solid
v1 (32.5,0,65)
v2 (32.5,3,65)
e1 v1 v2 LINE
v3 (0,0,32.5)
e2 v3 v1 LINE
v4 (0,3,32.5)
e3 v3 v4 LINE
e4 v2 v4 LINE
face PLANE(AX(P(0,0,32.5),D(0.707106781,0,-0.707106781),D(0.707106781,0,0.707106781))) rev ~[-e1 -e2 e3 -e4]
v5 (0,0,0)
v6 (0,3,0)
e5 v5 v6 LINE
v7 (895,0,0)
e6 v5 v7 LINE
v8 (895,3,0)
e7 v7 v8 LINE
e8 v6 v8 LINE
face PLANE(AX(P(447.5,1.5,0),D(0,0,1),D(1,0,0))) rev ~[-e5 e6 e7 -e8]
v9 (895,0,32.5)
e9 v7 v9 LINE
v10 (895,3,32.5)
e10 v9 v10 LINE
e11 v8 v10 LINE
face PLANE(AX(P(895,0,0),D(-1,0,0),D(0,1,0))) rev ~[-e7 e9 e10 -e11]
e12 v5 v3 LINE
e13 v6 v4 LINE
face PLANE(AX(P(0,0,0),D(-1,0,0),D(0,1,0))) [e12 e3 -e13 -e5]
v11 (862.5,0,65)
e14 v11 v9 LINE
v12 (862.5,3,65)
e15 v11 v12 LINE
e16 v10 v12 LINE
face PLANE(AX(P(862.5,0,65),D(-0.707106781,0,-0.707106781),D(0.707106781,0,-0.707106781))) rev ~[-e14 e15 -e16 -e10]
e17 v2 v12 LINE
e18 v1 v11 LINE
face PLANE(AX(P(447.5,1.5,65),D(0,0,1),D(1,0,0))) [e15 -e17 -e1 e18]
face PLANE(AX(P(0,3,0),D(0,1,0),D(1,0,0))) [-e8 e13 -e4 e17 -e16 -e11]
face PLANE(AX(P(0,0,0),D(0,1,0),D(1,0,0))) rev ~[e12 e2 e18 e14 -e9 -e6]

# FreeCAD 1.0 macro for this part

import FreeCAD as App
import Part
import Sketcher
Q = App.Units.Quantity


def add_polygon(sketch, points):
    """Adds a closed chain of lines whose ends are joined by coincident constraints."""
    first, n = sketch.GeometryCount, len(points)
    for a, b in zip(points, points[1:] + points[:1]):
        sketch.addGeometry(Part.LineSegment(App.Vector(*a, 0), App.Vector(*b, 0)), False)
    for i in range(n):
        sketch.addConstraint(Sketcher.Constraint("Coincident", first + i, 2, first + (i + 1) % n, 1))

doc = App.newDocument("Part")
params = doc.addObject("Spreadsheet::Sheet", "Params")
for row, (alias, value) in enumerate([
    ("sketch1_width", "895 mm"),
    ("sketch1_height", "3 mm"),
    ("pad1_length", "65 mm"),
    ("sketch2_width", "32.5 mm"),
], start=1):
    params.set(f"A{row}", alias)
    params.set(f"B{row}", "=" + value)
    params.setAlias(f"B{row}", alias)

body = doc.addObject("PartDesign::Body", "Body")

sketch1 = body.newObject("Sketcher::SketchObject", "Sketch")
sketch1.AttachmentSupport = (doc.getObject("XY_Plane"), [""])
sketch1.MapMode = "FlatFace"
add_polygon(sketch1, [(0, 3), (0, 0), (895, 0), (895, 3)])
sketch1.addConstraint(Sketcher.Constraint("Vertical", 0))
sketch1.addConstraint(Sketcher.Constraint("Horizontal", 1))
sketch1.addConstraint(Sketcher.Constraint("Vertical", 2))
sketch1.addConstraint(Sketcher.Constraint("Horizontal", 3))
sketch1.addConstraint(Sketcher.Constraint("Coincident", 0, 2, -1, 1))
sketch1.addConstraint(Sketcher.Constraint("DistanceX", 1, 1, 1, 2, Q("895 mm")))
sketch1.addConstraint(Sketcher.Constraint("DistanceY", 0, 2, 0, 1, Q("3 mm")))
sketch1.setExpression("Constraints[9]", "Params.sketch1_width")
sketch1.setExpression("Constraints[10]", "Params.sketch1_height")
pad1 = body.newObject("PartDesign::Pad", "Pad")
pad1.Profile = sketch1
pad1.setExpression("Length", "Params.pad1_length")

sketch2 = body.newObject("Sketcher::SketchObject", "Sketch001")
sketch2.AttachmentSupport = (doc.getObject("XZ_Plane"), [""])
sketch2.MapMode = "FlatFace"
add_polygon(sketch2, [(895, 65), (862.5, 65), (895, 32.5)])
add_polygon(sketch2, [(0, 65), (0, 32.5), (32.5, 65)])
sketch2.addConstraint(Sketcher.Constraint("Horizontal", 0))
sketch2.addConstraint(Sketcher.Constraint("Vertical", 2))
sketch2.addConstraint(Sketcher.Constraint("Vertical", 3))
sketch2.addConstraint(Sketcher.Constraint("Horizontal", 5))
sketch2.addConstraint(Sketcher.Constraint("PointOnObject", 3, 2, -2))
sketch2.addConstraint(Sketcher.Constraint("Perpendicular", 1, 4))
sketch2.addConstraint(Sketcher.Constraint("Horizontal", 1, 2, 3, 2))
sketch2.addConstraint(Sketcher.Constraint("Horizontal", 2, 2, 4, 2))
sketch2.addConstraint(Sketcher.Constraint("Equal", 0, 5))
sketch2.addConstraint(Sketcher.Constraint("DistanceX", 0, 2, 0, 1, Q("32.5 mm")))
sketch2.addConstraint(Sketcher.Constraint("DistanceY", -1, 1, 0, 2, Q("65 mm")))
sketch2.addConstraint(Sketcher.Constraint("DistanceX", -1, 1, 1, 2, Q("895 mm")))
sketch2.setExpression("Constraints[15]", "Params.sketch2_width")
pocket1 = body.newObject("PartDesign::Pocket", "Pocket")
pocket1.Profile = sketch2
pocket1.Type = "ThroughAll"

doc.recompute()
